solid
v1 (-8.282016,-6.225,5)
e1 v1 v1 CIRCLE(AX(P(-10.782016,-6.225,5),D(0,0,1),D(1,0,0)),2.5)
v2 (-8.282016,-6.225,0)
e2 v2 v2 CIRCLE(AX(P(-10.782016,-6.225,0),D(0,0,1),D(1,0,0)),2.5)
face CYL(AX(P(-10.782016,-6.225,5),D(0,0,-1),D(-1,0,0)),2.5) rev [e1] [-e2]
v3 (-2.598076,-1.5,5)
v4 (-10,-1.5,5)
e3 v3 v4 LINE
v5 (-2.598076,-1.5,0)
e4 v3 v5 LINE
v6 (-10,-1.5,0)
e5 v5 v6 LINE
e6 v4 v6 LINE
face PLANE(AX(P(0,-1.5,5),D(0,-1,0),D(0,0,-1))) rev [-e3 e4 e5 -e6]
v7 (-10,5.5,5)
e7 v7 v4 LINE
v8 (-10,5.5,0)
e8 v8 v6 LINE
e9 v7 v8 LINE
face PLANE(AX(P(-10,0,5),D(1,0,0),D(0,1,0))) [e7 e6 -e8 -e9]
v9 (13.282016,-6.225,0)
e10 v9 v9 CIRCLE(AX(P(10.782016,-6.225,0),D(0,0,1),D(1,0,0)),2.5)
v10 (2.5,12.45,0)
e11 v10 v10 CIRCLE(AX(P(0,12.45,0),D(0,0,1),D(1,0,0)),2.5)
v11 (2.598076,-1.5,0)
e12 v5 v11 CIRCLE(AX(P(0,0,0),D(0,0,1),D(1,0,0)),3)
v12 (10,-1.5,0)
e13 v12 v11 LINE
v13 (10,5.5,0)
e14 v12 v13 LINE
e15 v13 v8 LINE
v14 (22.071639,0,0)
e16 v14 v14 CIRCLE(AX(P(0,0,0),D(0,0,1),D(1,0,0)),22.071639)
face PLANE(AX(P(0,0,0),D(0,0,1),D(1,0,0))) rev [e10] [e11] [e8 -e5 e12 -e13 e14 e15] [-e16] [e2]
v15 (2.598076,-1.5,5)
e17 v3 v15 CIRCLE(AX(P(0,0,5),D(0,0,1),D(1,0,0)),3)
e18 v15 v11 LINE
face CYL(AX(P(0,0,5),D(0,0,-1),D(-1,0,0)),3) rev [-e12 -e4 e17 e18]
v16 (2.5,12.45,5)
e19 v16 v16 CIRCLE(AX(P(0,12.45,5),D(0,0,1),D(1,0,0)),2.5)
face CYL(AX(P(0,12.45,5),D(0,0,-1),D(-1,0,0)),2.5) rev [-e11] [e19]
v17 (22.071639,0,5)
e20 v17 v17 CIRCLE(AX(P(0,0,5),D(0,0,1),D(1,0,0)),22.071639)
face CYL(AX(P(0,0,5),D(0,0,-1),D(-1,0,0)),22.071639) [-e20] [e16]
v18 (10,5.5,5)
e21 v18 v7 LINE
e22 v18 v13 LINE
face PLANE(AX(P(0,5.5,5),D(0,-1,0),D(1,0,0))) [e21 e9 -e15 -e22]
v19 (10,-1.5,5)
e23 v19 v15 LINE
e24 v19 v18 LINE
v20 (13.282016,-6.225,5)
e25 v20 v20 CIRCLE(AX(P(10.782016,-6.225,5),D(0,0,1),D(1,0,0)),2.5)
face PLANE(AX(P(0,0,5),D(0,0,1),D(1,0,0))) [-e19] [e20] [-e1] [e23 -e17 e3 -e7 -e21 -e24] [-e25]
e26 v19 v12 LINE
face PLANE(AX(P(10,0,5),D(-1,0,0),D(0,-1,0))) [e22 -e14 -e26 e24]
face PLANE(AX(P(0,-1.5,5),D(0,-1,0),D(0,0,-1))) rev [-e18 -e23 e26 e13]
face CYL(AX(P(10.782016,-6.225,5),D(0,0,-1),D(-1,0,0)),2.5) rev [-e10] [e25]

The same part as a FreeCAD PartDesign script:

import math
import FreeCAD as App
import Part
import Sketcher
from FreeCAD import Vector
Q = App.Units.Quantity

doc = App.newDocument("Part")
body = doc.addObject("PartDesign::Body", "Body")

# Sketch on XY plane
sketch1 = body.newObject("Sketcher::SketchObject", "Sketch")
sketch1.AttachmentSupport = (doc.getObject("XY_Plane"), [""])
sketch1.MapMode = "FlatFace"
sketch1.addGeometry(Part.Circle(Vector(0, 0, 0), Vector(0, 0, 1), 22.1), False)
sketch1.addGeometry(Part.Circle(Vector(-10.8, -6.2, 0), Vector(0, 0, 1), 2.5), False)
sketch1.addGeometry(Part.Circle(Vector(10.8, -6.2, 0), Vector(0, 0, 1), 2.5), False)
sketch1.addGeometry(Part.LineSegment(Vector(-10, 5.5, 0), Vector(10, 5.5, 0)), False)
sketch1.addGeometry(Part.LineSegment(Vector(10, 5.5, 0), Vector(10, -1.5, 0)), False)
sketch1.addGeometry(Part.LineSegment(Vector(10, -1.5, 0), Vector(2.6, -1.5, 0)), False)
sketch1.addGeometry(Part.ArcOfCircle(Part.Circle(Vector(0, 0, 0), Vector(0, 0, 1), 3), math.radians(-150), math.radians(-30)), False)
sketch1.addGeometry(Part.LineSegment(Vector(-2.6, -1.5, 0), Vector(-10, -1.5, 0)), False)
sketch1.addGeometry(Part.LineSegment(Vector(-10, -1.5, 0), Vector(-10, 5.5, 0)), False)
sketch1.addGeometry(Part.Circle(Vector(0, 12.4, 0), Vector(0, 0, 1), 2.5), False)
sketch1.addConstraint(Sketcher.Constraint("Coincident", 3, 2, 4, 1))
sketch1.addConstraint(Sketcher.Constraint("Coincident", 4, 2, 5, 1))
sketch1.addConstraint(Sketcher.Constraint("Coincident", 5, 2, 6, 2))
sketch1.addConstraint(Sketcher.Constraint("Coincident", 6, 1, 7, 1))
sketch1.addConstraint(Sketcher.Constraint("Coincident", 7, 2, 8, 1))
sketch1.addConstraint(Sketcher.Constraint("Coincident", 8, 2, 3, 1))
sketch1.addConstraint(Sketcher.Constraint("Horizontal", 3))
sketch1.addConstraint(Sketcher.Constraint("Vertical", 4))
sketch1.addConstraint(Sketcher.Constraint("Horizontal", 5))
sketch1.addConstraint(Sketcher.Constraint("Horizontal", 7))
sketch1.addConstraint(Sketcher.Constraint("Vertical", 8))
sketch1.addConstraint(Sketcher.Constraint("Coincident", 0, 3, -1, 1))
sketch1.addConstraint(Sketcher.Constraint("Coincident", 6, 3, -1, 1))
sketch1.addConstraint(Sketcher.Constraint("Equal", 1, 2))
sketch1.addConstraint(Sketcher.Constraint("Equal", 2, 9))
sketch1.addConstraint(Sketcher.Constraint("Symmetric", 1, 3, 2, 3, -2))
sketch1.addConstraint(Sketcher.Constraint("Symmetric", 4, 2, 7, 2, -2))
sketch1.addConstraint(Sketcher.Constraint("PointOnObject", 9, 3, -2))
sketch1.addConstraint(Sketcher.Constraint("Diameter", 1, Q("5 mm")))
sketch1.addConstraint(Sketcher.Constraint("Radius", 6, Q("3 mm")))
sketch1.addConstraint(Sketcher.Constraint("DistanceX", 3, 1, 3, 2, Q("20 mm")))
sketch1.addConstraint(Sketcher.Constraint("DistanceY", 4, 2, 4, 1, Q("7 mm")))
sketch1.addConstraint(Sketcher.Constraint("DistanceY", -1, 1, 3, 2, Q("5.5 mm")))
sketch1.addConstraint(Sketcher.Constraint("Diameter", 0, Q("44.143278 mm")))
sketch1.addConstraint(Sketcher.Constraint("DistanceY", -1, 1, 9, 3, Q("12.45 mm")))
sketch1.addConstraint(Sketcher.Constraint("DistanceY", 1, 3, -1, 1, Q("6.225 mm")))
sketch1.addConstraint(Sketcher.Constraint("DistanceX", 5, 2, 2, 3, Q("8.18394 mm")))
pad1 = body.newObject("PartDesign::Pad", "Pad")
pad1.Profile = sketch1
pad1.Length = 5

doc.recompute()
